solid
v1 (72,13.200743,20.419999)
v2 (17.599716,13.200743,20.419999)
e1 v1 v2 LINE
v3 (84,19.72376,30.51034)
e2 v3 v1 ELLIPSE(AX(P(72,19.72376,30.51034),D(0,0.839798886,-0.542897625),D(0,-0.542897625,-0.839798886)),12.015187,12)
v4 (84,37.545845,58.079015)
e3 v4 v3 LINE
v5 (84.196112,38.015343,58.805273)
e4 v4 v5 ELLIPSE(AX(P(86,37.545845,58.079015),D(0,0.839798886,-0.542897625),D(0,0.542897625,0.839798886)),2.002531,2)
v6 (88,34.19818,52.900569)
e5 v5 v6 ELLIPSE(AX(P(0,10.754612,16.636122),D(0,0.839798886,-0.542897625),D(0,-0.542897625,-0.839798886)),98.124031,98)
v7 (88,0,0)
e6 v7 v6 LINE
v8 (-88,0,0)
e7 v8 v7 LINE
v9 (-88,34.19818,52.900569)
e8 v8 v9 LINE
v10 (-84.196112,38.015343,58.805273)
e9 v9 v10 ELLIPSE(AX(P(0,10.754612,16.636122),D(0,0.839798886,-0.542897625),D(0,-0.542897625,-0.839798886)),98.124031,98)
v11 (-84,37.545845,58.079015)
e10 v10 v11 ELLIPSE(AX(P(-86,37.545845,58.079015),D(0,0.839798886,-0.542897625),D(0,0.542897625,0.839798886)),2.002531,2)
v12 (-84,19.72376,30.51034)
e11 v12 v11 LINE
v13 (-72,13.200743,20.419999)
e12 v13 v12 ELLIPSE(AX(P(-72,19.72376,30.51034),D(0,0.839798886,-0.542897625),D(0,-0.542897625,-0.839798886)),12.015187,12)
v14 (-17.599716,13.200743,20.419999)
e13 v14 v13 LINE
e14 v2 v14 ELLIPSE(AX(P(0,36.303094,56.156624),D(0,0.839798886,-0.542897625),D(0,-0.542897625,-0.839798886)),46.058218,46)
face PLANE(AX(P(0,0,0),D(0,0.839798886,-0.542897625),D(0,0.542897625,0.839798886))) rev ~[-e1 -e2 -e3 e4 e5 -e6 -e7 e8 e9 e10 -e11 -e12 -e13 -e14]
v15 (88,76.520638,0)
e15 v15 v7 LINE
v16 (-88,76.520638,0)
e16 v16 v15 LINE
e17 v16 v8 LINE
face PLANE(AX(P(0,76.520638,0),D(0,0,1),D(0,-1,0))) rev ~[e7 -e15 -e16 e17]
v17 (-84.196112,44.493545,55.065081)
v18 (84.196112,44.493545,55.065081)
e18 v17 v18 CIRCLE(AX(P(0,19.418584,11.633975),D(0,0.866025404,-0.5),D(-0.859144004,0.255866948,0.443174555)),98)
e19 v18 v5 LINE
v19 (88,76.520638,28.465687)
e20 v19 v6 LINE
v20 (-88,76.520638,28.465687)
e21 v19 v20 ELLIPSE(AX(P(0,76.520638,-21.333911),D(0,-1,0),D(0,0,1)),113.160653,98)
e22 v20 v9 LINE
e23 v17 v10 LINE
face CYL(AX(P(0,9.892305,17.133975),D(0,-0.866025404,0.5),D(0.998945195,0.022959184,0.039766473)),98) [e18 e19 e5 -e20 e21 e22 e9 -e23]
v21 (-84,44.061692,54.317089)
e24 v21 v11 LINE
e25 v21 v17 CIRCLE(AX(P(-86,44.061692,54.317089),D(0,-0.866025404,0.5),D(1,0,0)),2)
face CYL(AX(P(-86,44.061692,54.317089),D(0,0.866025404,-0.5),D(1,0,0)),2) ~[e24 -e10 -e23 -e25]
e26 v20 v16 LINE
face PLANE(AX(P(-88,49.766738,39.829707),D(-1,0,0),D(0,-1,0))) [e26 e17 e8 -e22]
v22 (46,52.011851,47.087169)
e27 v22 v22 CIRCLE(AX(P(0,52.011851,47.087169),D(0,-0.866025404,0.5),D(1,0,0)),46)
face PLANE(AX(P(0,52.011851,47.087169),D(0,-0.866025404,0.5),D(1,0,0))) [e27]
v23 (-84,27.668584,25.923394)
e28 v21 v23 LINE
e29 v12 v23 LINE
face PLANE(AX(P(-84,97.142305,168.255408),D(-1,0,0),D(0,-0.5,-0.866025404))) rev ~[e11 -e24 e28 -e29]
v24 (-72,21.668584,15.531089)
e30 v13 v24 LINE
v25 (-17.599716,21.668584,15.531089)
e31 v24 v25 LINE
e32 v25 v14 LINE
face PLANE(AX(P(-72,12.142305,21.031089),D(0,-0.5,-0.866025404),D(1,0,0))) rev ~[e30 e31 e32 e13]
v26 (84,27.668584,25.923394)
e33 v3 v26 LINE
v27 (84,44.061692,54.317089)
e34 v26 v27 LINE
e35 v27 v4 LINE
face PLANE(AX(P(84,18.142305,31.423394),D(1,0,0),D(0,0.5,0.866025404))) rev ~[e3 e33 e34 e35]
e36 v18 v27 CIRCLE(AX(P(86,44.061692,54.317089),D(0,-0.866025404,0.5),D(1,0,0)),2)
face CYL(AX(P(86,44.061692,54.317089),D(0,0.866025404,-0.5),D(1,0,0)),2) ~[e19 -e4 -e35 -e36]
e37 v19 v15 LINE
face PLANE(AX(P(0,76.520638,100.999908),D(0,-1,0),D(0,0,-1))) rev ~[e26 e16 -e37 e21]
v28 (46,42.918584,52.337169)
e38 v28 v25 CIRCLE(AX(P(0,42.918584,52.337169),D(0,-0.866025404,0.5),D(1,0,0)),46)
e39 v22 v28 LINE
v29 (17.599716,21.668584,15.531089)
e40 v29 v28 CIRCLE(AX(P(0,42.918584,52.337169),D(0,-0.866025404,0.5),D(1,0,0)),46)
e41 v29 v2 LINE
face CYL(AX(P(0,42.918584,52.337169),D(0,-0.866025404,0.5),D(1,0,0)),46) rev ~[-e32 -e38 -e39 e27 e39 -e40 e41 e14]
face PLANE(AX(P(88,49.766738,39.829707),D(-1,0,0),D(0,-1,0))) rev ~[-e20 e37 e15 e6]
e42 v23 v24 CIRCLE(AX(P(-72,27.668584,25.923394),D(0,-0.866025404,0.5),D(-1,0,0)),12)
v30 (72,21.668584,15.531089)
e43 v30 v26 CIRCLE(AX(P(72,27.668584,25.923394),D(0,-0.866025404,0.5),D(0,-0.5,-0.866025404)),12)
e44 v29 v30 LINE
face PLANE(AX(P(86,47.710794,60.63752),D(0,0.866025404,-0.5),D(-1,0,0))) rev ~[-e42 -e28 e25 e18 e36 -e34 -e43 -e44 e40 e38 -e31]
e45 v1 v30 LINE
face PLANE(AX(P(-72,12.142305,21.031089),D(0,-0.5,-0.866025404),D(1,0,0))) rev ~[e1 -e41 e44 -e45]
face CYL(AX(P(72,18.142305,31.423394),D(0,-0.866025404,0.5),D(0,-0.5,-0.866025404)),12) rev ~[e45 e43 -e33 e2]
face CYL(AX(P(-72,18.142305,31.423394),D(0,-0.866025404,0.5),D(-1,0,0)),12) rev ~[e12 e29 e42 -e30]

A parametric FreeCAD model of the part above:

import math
import FreeCAD as App
import Part
import Sketcher
from FreeCAD import Vector

doc = App.newDocument("Part")
body = doc.addObject("PartDesign::Body", "Body")

sketch1 = body.newObject("Sketcher::SketchObject", "Sketch")
sketch1.AttachmentSupport = (doc.getObject("YZ_Plane"), [""])
sketch1.MapMode = "FlatFace"
sketch1.addGeometry(Part.LineSegment(Vector(65.292549, 100.999908, 0), Vector(0, 0, 0)), False)
sketch1.addGeometry(Part.LineSegment(Vector(0, 0, 0), Vector(76.520638, 0, 0)), False)
sketch1.addGeometry(Part.LineSegment(Vector(76.520638, 0, 0), Vector(76.520638, 100.999908, 0)), False)
sketch1.addGeometry(Part.LineSegment(Vector(76.520638, 100.999908, 0), Vector(65.292549, 100.999908, 0)), False)
sketch1.addConstraint(Sketcher.Constraint("Coincident", 0, 2, 1, 1))
sketch1.addConstraint(Sketcher.Constraint("Coincident", 1, 2, 2, 1))
sketch1.addConstraint(Sketcher.Constraint("Coincident", 2, 2, 3, 1))
sketch1.addConstraint(Sketcher.Constraint("Coincident", 3, 2, 0, 1))
sketch1.addConstraint(Sketcher.Constraint("Horizontal", 1))
sketch1.addConstraint(Sketcher.Constraint("Vertical", 2))
sketch1.addConstraint(Sketcher.Constraint("Horizontal", 3))
sketch1.addConstraint(Sketcher.Constraint("Coincident", 0, 2, -1, 1))
sketch1.addConstraint(Sketcher.Constraint("DistanceX", 1, 1, 1, 2, 76.520638))
sketch1.addConstraint(Sketcher.Constraint("DistanceX", 3, 2, 3, 1, 11.228089))
sketch1.addConstraint(Sketcher.Constraint("Distance", 0, 120.26678))
pad1 = body.newObject("PartDesign::Pad", "Pad")
pad1.Profile = sketch1
pad1.Length = 176
pad1.Midplane = True

sketch2 = body.newObject("Sketcher::SketchObject", "Sketch001")
sketch2.Placement = App.Placement(Vector(0, 54.642305, 94.643248), App.Rotation(Vector(1, 0, 0), Vector(0, 0.5, 0.866025404), Vector(0, -0.866025404, 0.5), "ZXY"))
sketch2.addGeometry(Part.LineSegment(Vector(-84, 85, 0), Vector(-84, -73, 0)), False)
sketch2.addGeometry(Part.ArcOfCircle(Part.Circle(Vector(-72, -73, 0), Vector(0, 0, 1), 12), math.radians(180), math.radians(270)), False)
sketch2.addGeometry(Part.LineSegment(Vector(-72, -85, 0), Vector(72, -85, 0)), False)
sketch2.addGeometry(Part.ArcOfCircle(Part.Circle(Vector(72, -73, 0), Vector(0, 0, 1), 12), math.radians(-90), math.radians(0)), False)
sketch2.addGeometry(Part.LineSegment(Vector(84, -73, 0), Vector(84, 85, 0)), False)
sketch2.addGeometry(Part.LineSegment(Vector(84, 85, 0), Vector(-84, 85, 0)), False)
sketch2.addConstraint(Sketcher.Constraint("Tangent", 0, 2, 1, 1))
sketch2.addConstraint(Sketcher.Constraint("Tangent", 1, 2, 2, 1))
sketch2.addConstraint(Sketcher.Constraint("Tangent", 2, 2, 3, 1))
sketch2.addConstraint(Sketcher.Constraint("Tangent", 3, 2, 4, 1))
sketch2.addConstraint(Sketcher.Constraint("Coincident", 4, 2, 5, 1))
sketch2.addConstraint(Sketcher.Constraint("Coincident", 5, 2, 0, 1))
sketch2.addConstraint(Sketcher.Constraint("Vertical", 0))
sketch2.addConstraint(Sketcher.Constraint("Horizontal", 2))
sketch2.addConstraint(Sketcher.Constraint("Vertical", 4))
sketch2.addConstraint(Sketcher.Constraint("Horizontal", 5))
sketch2.addConstraint(Sketcher.Constraint("Equal", 1, 3))
sketch2.addConstraint(Sketcher.Constraint("Radius", 1, 12.0))
sketch2.addConstraint(Sketcher.Constraint("DistanceX", 2, 1, 2, 2, 144.0))
sketch2.addConstraint(Sketcher.Constraint("DistanceY", 0, 2, 0, 1, 158.0))
sketch2.addConstraint(Sketcher.Constraint("DistanceX", 1, 3, -1, 1, 72.0))
sketch2.addConstraint(Sketcher.Constraint("DistanceY", 1, 3, -1, 1, 73.0))
pocket1 = body.newObject("PartDesign::Pocket", "Pocket")
pocket1.Profile = sketch2
pocket1.Length = 11

sketch3 = body.newObject("Sketcher::SketchObject", "Sketch002")
sketch3.Placement = App.Placement(Vector(0, 9.526279, -5.5), App.Rotation(Vector(1, 0, 0), Vector(0, 0.5, 0.866025404), Vector(0, -0.866025404, 0.5), "ZXY"))
sketch3.addGeometry(Part.Circle(Vector(0, 67, 0), Vector(0, 0, 1), 46), False)
sketch3.addConstraint(Sketcher.Constraint("PointOnObject", 0, 3, -2))
sketch3.addConstraint(Sketcher.Constraint("Diameter", 0, 92.0))
sketch3.addConstraint(Sketcher.Constraint("DistanceY", -1, 1, 0, 3, 66.78461))
pocket2 = body.newObject("PartDesign::Pocket", "Pocket001")
pocket2.Profile = sketch3
pocket2.Length = 21
pocket2.Midplane = True

sketch4 = body.newObject("Sketcher::SketchObject", "Sketch003")
sketch4.Placement = App.Placement(Vector(0, 0, 0), App.Rotation(Vector(1, 0, 0), Vector(0, 0.5, 0.866025404), Vector(0, -0.866025404, 0.5), "ZXY"))
sketch4.addGeometry(Part.ArcOfCircle(Part.Circle(Vector(0, 20, 0), Vector(0, 0, 1), 98), math.radians(3), math.radians(177)), False)
sketch4.addGeometry(Part.LineSegment(Vector(98, 24, 0), Vector(98, 154, 0)), False)
sketch4.addGeometry(Part.LineSegment(Vector(98, 154, 0), Vector(-98, 154, 0)), False)
sketch4.addGeometry(Part.LineSegment(Vector(-98, 154, 0), Vector(-98, 24, 0)), False)
sketch4.addConstraint(Sketcher.Constraint("Coincident", 0, 1, 1, 1))
sketch4.addConstraint(Sketcher.Constraint("Coincident", 1, 2, 2, 1))
sketch4.addConstraint(Sketcher.Constraint("Coincident", 2, 2, 3, 1))
sketch4.addConstraint(Sketcher.Constraint("Coincident", 3, 2, 0, 2))
sketch4.addConstraint(Sketcher.Constraint("Vertical", 1))
sketch4.addConstraint(Sketcher.Constraint("Horizontal", 2))
sketch4.addConstraint(Sketcher.Constraint("Vertical", 3))
sketch4.addConstraint(Sketcher.Constraint("Symmetric", 0, 1, 3, 2, -2))
sketch4.addConstraint(Sketcher.Constraint("Radius", 0, 98.0))
sketch4.addConstraint(Sketcher.Constraint("DistanceY", 1, 1, 1, 2, 130.0))
sketch4.addConstraint(Sketcher.Constraint("DistanceY", 0, 3, 0, 1, 4.5))
sketch4.addConstraint(Sketcher.Constraint("DistanceY", -1, 1, 0, 3, 19.78461))
pocket3 = body.newObject("PartDesign::Pocket", "Pocket002")
pocket3.Profile = sketch4
pocket3.Type = "ThroughAll"

sketch5 = body.newObject("Sketcher::SketchObject", "Sketch004")
sketch5.Placement = App.Placement(Vector(0, 9.526279, -5.5), App.Rotation(Vector(1, 0, 0), Vector(0, 0.5, 0.866025404), Vector(0, -0.866025404, 0.5), "ZXY"))
sketch5.addGeometry(Part.ArcOfCircle(Part.Circle(Vector(86, 69.1, 0), Vector(0, 0, 1), 2), math.radians(0), math.radians(180)), False)
sketch5.addGeometry(Part.LineSegment(Vector(88, 69.1, 0), Vector(88, 84.1, 0)), False)
sketch5.addGeometry(Part.LineSegment(Vector(88, 84.1, 0), Vector(84, 84.1, 0)), False)
sketch5.addGeometry(Part.LineSegment(Vector(84, 84.1, 0), Vector(84, 69.1, 0)), False)
sketch5.addGeometry(Part.ArcOfCircle(Part.Circle(Vector(-86, 69.1, 0), Vector(0, 0, 1), 2), math.radians(0), math.radians(180)), False)
sketch5.addGeometry(Part.LineSegment(Vector(-84, 69.1, 0), Vector(-84, 85.1, 0)), False)
sketch5.addGeometry(Part.LineSegment(Vector(-84, 85.1, 0), Vector(-88, 85.1, 0)), False)
sketch5.addGeometry(Part.LineSegment(Vector(-88, 85.1, 0), Vector(-88, 69.1, 0)), False)
sketch5.addConstraint(Sketcher.Constraint("Tangent", 0, 1, 1, 1))
sketch5.addConstraint(Sketcher.Constraint("Coincident", 1, 2, 2, 1))
sketch5.addConstraint(Sketcher.Constraint("Coincident", 2, 2, 3, 1))
sketch5.addConstraint(Sketcher.Constraint("Tangent", 3, 2, 0, 2))
sketch5.addConstraint(Sketcher.Constraint("Tangent", 4, 1, 5, 1))
sketch5.addConstraint(Sketcher.Constraint("Coincident", 5, 2, 6, 1))
sketch5.addConstraint(Sketcher.Constraint("Coincident", 6, 2, 7, 1))
sketch5.addConstraint(Sketcher.Constraint("Tangent", 7, 2, 4, 2))
sketch5.addConstraint(Sketcher.Constraint("Vertical", 1))
sketch5.addConstraint(Sketcher.Constraint("Horizontal", 2))
sketch5.addConstraint(Sketcher.Constraint("Vertical", 3))
sketch5.addConstraint(Sketcher.Constraint("Vertical", 5))
sketch5.addConstraint(Sketcher.Constraint("Horizontal", 6))
sketch5.addConstraint(Sketcher.Constraint("Vertical", 7))
sketch5.addConstraint(Sketcher.Constraint("Equal", 0, 4))
sketch5.addConstraint(Sketcher.Constraint("Symmetric", 0, 3, 4, 3, -2))
sketch5.addConstraint(Sketcher.Constraint("Radius", 0, 2.0))
sketch5.addConstraint(Sketcher.Constraint("DistanceY", 1, 1, 1, 2, 15.0))
sketch5.addConstraint(Sketcher.Constraint("DistanceY", 5, 1, 5, 2, 16.0))
sketch5.addConstraint(Sketcher.Constraint("DistanceX", -1, 1, 0, 3, 86.0))
sketch5.addConstraint(Sketcher.Constraint("DistanceY", -1, 1, 0, 3, 69.070825))
pocket4 = body.newObject("PartDesign::Pocket", "Pocket003")
pocket4.Profile = sketch5
pocket4.Length = 10
pocket4.Reversed = True

doc.recompute()
